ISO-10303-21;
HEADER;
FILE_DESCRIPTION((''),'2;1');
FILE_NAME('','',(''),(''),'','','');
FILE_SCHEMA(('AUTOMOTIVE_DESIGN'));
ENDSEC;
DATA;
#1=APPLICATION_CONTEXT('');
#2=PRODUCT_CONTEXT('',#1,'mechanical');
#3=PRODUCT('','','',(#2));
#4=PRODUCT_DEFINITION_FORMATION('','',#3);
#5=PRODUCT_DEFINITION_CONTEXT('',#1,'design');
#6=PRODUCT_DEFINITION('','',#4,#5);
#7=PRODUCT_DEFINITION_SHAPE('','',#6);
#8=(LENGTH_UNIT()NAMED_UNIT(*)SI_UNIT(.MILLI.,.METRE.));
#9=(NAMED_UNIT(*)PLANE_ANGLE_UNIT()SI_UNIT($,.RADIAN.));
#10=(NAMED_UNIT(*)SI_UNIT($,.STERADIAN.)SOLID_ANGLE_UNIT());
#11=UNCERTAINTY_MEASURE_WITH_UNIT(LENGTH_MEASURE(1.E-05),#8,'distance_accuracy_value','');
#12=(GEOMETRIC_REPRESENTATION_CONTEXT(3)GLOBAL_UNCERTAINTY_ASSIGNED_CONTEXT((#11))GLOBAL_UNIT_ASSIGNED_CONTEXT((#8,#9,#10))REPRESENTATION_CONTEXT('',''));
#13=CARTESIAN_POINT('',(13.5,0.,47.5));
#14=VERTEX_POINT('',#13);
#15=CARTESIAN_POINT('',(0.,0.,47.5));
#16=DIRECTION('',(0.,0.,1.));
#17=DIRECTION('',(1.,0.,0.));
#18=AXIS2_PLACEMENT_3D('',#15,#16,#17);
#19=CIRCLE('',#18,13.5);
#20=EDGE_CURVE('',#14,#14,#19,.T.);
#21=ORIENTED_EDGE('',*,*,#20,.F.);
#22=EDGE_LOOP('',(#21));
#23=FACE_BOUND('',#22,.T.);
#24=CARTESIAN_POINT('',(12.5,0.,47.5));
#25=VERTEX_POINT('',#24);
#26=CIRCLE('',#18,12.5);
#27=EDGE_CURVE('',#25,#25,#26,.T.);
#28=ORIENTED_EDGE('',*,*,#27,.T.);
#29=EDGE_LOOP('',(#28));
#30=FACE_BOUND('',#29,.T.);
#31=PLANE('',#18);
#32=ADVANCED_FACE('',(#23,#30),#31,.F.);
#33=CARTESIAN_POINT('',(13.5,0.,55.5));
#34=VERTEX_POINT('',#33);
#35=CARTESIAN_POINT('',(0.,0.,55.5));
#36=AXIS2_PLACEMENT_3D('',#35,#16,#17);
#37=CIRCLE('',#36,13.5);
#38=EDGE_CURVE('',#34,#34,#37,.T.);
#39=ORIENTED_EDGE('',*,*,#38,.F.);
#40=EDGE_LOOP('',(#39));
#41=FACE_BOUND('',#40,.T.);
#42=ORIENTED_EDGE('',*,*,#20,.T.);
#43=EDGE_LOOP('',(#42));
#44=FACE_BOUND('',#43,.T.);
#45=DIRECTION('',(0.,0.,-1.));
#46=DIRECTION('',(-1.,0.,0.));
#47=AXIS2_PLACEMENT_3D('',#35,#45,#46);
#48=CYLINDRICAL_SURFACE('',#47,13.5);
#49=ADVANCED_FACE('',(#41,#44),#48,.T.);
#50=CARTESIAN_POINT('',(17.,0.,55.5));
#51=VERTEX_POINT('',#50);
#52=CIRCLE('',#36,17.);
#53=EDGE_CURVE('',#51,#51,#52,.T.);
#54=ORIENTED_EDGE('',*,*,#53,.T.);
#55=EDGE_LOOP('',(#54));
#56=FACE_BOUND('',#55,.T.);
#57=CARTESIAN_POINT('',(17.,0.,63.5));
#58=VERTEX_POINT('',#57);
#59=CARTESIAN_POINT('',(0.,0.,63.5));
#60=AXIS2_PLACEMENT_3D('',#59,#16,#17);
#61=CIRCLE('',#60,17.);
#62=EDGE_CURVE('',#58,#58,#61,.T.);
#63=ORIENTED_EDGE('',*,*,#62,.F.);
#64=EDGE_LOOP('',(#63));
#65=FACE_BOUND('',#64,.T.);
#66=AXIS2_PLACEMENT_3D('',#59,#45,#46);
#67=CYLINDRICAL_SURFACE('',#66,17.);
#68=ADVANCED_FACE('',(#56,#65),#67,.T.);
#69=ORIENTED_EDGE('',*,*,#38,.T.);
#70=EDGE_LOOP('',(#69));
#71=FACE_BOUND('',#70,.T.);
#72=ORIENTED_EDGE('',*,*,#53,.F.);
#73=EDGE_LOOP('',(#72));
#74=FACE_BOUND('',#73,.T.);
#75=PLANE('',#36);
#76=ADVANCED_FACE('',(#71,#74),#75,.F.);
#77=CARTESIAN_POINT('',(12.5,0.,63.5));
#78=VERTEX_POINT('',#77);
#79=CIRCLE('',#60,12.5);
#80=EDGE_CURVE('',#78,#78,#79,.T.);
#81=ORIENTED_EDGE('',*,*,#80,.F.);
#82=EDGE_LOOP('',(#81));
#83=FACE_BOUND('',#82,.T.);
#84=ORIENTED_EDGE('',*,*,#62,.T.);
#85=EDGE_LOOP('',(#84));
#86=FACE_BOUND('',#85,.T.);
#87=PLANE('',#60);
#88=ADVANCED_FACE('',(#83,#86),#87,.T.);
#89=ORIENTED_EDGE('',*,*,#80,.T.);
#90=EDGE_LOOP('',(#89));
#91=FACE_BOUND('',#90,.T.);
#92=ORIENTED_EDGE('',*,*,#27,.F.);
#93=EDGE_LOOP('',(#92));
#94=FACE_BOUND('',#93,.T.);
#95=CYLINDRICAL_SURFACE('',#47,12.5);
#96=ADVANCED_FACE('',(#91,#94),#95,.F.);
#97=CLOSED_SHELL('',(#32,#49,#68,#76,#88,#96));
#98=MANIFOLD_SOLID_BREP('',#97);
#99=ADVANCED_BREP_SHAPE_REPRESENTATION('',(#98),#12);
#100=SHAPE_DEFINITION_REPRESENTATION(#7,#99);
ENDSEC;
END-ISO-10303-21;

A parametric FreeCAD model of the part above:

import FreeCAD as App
import Part
import Sketcher

V = App.Vector
Q = App.Units.Quantity

doc = App.newDocument("Part")
body = doc.addObject("PartDesign::Body", "Body")

# Sketch on XY plane
sketch1 = doc.addObject("Sketcher::SketchObject", "Sketch")
body.addObject(sketch1)
sketch1.AttachmentSupport = (doc.XY_Plane, [""])
sketch1.MapMode = "FlatFace"
sketch1.AttachmentOffset = App.Placement(V(0, 0, 47.5), App.Rotation())
sketch1.addGeometry([
    Part.Circle(V(0, 0, 0), V(0, 0, 1), 14),
    Part.Circle(V(0, 0, 0), V(0, 0, 1), 12),
], False)
sketch1.addConstraint([
    Sketcher.Constraint("Coincident", 0, 3, -1, 1),
    Sketcher.Constraint("Coincident", 1, 3, -1, 1),
    Sketcher.Constraint("Diameter", 0, Q("27 mm")),
    Sketcher.Constraint("Diameter", 1, Q("25 mm")),
])
pad1 = doc.addObject("PartDesign::Pad", "Pad")
body.addObject(pad1)
pad1.Profile = sketch1
pad1.Length = 8

# Sketch on XY plane
sketch2 = doc.addObject("Sketcher::SketchObject", "Sketch001")
body.addObject(sketch2)
sketch2.AttachmentSupport = (doc.XY_Plane, [""])
sketch2.MapMode = "FlatFace"
sketch2.AttachmentOffset = App.Placement(V(0, 0, 55.5), App.Rotation())
sketch2.addGeometry([
    Part.Circle(V(0, 0, 0), V(0, 0, 1), 17),
    Part.Circle(V(0, 0, 0), V(0, 0, 1), 12),
], False)
sketch2.addConstraint([
    Sketcher.Constraint("Coincident", 0, 3, -1, 1),
    Sketcher.Constraint("Coincident", 1, 3, -1, 1),
    Sketcher.Constraint("Diameter", 0, Q("34 mm")),
    Sketcher.Constraint("Diameter", 1, Q("25 mm")),
])
pad2 = doc.addObject("PartDesign::Pad", "Pad001")
body.addObject(pad2)
pad2.Profile = sketch2
pad2.Length = 8

doc.recompute()
